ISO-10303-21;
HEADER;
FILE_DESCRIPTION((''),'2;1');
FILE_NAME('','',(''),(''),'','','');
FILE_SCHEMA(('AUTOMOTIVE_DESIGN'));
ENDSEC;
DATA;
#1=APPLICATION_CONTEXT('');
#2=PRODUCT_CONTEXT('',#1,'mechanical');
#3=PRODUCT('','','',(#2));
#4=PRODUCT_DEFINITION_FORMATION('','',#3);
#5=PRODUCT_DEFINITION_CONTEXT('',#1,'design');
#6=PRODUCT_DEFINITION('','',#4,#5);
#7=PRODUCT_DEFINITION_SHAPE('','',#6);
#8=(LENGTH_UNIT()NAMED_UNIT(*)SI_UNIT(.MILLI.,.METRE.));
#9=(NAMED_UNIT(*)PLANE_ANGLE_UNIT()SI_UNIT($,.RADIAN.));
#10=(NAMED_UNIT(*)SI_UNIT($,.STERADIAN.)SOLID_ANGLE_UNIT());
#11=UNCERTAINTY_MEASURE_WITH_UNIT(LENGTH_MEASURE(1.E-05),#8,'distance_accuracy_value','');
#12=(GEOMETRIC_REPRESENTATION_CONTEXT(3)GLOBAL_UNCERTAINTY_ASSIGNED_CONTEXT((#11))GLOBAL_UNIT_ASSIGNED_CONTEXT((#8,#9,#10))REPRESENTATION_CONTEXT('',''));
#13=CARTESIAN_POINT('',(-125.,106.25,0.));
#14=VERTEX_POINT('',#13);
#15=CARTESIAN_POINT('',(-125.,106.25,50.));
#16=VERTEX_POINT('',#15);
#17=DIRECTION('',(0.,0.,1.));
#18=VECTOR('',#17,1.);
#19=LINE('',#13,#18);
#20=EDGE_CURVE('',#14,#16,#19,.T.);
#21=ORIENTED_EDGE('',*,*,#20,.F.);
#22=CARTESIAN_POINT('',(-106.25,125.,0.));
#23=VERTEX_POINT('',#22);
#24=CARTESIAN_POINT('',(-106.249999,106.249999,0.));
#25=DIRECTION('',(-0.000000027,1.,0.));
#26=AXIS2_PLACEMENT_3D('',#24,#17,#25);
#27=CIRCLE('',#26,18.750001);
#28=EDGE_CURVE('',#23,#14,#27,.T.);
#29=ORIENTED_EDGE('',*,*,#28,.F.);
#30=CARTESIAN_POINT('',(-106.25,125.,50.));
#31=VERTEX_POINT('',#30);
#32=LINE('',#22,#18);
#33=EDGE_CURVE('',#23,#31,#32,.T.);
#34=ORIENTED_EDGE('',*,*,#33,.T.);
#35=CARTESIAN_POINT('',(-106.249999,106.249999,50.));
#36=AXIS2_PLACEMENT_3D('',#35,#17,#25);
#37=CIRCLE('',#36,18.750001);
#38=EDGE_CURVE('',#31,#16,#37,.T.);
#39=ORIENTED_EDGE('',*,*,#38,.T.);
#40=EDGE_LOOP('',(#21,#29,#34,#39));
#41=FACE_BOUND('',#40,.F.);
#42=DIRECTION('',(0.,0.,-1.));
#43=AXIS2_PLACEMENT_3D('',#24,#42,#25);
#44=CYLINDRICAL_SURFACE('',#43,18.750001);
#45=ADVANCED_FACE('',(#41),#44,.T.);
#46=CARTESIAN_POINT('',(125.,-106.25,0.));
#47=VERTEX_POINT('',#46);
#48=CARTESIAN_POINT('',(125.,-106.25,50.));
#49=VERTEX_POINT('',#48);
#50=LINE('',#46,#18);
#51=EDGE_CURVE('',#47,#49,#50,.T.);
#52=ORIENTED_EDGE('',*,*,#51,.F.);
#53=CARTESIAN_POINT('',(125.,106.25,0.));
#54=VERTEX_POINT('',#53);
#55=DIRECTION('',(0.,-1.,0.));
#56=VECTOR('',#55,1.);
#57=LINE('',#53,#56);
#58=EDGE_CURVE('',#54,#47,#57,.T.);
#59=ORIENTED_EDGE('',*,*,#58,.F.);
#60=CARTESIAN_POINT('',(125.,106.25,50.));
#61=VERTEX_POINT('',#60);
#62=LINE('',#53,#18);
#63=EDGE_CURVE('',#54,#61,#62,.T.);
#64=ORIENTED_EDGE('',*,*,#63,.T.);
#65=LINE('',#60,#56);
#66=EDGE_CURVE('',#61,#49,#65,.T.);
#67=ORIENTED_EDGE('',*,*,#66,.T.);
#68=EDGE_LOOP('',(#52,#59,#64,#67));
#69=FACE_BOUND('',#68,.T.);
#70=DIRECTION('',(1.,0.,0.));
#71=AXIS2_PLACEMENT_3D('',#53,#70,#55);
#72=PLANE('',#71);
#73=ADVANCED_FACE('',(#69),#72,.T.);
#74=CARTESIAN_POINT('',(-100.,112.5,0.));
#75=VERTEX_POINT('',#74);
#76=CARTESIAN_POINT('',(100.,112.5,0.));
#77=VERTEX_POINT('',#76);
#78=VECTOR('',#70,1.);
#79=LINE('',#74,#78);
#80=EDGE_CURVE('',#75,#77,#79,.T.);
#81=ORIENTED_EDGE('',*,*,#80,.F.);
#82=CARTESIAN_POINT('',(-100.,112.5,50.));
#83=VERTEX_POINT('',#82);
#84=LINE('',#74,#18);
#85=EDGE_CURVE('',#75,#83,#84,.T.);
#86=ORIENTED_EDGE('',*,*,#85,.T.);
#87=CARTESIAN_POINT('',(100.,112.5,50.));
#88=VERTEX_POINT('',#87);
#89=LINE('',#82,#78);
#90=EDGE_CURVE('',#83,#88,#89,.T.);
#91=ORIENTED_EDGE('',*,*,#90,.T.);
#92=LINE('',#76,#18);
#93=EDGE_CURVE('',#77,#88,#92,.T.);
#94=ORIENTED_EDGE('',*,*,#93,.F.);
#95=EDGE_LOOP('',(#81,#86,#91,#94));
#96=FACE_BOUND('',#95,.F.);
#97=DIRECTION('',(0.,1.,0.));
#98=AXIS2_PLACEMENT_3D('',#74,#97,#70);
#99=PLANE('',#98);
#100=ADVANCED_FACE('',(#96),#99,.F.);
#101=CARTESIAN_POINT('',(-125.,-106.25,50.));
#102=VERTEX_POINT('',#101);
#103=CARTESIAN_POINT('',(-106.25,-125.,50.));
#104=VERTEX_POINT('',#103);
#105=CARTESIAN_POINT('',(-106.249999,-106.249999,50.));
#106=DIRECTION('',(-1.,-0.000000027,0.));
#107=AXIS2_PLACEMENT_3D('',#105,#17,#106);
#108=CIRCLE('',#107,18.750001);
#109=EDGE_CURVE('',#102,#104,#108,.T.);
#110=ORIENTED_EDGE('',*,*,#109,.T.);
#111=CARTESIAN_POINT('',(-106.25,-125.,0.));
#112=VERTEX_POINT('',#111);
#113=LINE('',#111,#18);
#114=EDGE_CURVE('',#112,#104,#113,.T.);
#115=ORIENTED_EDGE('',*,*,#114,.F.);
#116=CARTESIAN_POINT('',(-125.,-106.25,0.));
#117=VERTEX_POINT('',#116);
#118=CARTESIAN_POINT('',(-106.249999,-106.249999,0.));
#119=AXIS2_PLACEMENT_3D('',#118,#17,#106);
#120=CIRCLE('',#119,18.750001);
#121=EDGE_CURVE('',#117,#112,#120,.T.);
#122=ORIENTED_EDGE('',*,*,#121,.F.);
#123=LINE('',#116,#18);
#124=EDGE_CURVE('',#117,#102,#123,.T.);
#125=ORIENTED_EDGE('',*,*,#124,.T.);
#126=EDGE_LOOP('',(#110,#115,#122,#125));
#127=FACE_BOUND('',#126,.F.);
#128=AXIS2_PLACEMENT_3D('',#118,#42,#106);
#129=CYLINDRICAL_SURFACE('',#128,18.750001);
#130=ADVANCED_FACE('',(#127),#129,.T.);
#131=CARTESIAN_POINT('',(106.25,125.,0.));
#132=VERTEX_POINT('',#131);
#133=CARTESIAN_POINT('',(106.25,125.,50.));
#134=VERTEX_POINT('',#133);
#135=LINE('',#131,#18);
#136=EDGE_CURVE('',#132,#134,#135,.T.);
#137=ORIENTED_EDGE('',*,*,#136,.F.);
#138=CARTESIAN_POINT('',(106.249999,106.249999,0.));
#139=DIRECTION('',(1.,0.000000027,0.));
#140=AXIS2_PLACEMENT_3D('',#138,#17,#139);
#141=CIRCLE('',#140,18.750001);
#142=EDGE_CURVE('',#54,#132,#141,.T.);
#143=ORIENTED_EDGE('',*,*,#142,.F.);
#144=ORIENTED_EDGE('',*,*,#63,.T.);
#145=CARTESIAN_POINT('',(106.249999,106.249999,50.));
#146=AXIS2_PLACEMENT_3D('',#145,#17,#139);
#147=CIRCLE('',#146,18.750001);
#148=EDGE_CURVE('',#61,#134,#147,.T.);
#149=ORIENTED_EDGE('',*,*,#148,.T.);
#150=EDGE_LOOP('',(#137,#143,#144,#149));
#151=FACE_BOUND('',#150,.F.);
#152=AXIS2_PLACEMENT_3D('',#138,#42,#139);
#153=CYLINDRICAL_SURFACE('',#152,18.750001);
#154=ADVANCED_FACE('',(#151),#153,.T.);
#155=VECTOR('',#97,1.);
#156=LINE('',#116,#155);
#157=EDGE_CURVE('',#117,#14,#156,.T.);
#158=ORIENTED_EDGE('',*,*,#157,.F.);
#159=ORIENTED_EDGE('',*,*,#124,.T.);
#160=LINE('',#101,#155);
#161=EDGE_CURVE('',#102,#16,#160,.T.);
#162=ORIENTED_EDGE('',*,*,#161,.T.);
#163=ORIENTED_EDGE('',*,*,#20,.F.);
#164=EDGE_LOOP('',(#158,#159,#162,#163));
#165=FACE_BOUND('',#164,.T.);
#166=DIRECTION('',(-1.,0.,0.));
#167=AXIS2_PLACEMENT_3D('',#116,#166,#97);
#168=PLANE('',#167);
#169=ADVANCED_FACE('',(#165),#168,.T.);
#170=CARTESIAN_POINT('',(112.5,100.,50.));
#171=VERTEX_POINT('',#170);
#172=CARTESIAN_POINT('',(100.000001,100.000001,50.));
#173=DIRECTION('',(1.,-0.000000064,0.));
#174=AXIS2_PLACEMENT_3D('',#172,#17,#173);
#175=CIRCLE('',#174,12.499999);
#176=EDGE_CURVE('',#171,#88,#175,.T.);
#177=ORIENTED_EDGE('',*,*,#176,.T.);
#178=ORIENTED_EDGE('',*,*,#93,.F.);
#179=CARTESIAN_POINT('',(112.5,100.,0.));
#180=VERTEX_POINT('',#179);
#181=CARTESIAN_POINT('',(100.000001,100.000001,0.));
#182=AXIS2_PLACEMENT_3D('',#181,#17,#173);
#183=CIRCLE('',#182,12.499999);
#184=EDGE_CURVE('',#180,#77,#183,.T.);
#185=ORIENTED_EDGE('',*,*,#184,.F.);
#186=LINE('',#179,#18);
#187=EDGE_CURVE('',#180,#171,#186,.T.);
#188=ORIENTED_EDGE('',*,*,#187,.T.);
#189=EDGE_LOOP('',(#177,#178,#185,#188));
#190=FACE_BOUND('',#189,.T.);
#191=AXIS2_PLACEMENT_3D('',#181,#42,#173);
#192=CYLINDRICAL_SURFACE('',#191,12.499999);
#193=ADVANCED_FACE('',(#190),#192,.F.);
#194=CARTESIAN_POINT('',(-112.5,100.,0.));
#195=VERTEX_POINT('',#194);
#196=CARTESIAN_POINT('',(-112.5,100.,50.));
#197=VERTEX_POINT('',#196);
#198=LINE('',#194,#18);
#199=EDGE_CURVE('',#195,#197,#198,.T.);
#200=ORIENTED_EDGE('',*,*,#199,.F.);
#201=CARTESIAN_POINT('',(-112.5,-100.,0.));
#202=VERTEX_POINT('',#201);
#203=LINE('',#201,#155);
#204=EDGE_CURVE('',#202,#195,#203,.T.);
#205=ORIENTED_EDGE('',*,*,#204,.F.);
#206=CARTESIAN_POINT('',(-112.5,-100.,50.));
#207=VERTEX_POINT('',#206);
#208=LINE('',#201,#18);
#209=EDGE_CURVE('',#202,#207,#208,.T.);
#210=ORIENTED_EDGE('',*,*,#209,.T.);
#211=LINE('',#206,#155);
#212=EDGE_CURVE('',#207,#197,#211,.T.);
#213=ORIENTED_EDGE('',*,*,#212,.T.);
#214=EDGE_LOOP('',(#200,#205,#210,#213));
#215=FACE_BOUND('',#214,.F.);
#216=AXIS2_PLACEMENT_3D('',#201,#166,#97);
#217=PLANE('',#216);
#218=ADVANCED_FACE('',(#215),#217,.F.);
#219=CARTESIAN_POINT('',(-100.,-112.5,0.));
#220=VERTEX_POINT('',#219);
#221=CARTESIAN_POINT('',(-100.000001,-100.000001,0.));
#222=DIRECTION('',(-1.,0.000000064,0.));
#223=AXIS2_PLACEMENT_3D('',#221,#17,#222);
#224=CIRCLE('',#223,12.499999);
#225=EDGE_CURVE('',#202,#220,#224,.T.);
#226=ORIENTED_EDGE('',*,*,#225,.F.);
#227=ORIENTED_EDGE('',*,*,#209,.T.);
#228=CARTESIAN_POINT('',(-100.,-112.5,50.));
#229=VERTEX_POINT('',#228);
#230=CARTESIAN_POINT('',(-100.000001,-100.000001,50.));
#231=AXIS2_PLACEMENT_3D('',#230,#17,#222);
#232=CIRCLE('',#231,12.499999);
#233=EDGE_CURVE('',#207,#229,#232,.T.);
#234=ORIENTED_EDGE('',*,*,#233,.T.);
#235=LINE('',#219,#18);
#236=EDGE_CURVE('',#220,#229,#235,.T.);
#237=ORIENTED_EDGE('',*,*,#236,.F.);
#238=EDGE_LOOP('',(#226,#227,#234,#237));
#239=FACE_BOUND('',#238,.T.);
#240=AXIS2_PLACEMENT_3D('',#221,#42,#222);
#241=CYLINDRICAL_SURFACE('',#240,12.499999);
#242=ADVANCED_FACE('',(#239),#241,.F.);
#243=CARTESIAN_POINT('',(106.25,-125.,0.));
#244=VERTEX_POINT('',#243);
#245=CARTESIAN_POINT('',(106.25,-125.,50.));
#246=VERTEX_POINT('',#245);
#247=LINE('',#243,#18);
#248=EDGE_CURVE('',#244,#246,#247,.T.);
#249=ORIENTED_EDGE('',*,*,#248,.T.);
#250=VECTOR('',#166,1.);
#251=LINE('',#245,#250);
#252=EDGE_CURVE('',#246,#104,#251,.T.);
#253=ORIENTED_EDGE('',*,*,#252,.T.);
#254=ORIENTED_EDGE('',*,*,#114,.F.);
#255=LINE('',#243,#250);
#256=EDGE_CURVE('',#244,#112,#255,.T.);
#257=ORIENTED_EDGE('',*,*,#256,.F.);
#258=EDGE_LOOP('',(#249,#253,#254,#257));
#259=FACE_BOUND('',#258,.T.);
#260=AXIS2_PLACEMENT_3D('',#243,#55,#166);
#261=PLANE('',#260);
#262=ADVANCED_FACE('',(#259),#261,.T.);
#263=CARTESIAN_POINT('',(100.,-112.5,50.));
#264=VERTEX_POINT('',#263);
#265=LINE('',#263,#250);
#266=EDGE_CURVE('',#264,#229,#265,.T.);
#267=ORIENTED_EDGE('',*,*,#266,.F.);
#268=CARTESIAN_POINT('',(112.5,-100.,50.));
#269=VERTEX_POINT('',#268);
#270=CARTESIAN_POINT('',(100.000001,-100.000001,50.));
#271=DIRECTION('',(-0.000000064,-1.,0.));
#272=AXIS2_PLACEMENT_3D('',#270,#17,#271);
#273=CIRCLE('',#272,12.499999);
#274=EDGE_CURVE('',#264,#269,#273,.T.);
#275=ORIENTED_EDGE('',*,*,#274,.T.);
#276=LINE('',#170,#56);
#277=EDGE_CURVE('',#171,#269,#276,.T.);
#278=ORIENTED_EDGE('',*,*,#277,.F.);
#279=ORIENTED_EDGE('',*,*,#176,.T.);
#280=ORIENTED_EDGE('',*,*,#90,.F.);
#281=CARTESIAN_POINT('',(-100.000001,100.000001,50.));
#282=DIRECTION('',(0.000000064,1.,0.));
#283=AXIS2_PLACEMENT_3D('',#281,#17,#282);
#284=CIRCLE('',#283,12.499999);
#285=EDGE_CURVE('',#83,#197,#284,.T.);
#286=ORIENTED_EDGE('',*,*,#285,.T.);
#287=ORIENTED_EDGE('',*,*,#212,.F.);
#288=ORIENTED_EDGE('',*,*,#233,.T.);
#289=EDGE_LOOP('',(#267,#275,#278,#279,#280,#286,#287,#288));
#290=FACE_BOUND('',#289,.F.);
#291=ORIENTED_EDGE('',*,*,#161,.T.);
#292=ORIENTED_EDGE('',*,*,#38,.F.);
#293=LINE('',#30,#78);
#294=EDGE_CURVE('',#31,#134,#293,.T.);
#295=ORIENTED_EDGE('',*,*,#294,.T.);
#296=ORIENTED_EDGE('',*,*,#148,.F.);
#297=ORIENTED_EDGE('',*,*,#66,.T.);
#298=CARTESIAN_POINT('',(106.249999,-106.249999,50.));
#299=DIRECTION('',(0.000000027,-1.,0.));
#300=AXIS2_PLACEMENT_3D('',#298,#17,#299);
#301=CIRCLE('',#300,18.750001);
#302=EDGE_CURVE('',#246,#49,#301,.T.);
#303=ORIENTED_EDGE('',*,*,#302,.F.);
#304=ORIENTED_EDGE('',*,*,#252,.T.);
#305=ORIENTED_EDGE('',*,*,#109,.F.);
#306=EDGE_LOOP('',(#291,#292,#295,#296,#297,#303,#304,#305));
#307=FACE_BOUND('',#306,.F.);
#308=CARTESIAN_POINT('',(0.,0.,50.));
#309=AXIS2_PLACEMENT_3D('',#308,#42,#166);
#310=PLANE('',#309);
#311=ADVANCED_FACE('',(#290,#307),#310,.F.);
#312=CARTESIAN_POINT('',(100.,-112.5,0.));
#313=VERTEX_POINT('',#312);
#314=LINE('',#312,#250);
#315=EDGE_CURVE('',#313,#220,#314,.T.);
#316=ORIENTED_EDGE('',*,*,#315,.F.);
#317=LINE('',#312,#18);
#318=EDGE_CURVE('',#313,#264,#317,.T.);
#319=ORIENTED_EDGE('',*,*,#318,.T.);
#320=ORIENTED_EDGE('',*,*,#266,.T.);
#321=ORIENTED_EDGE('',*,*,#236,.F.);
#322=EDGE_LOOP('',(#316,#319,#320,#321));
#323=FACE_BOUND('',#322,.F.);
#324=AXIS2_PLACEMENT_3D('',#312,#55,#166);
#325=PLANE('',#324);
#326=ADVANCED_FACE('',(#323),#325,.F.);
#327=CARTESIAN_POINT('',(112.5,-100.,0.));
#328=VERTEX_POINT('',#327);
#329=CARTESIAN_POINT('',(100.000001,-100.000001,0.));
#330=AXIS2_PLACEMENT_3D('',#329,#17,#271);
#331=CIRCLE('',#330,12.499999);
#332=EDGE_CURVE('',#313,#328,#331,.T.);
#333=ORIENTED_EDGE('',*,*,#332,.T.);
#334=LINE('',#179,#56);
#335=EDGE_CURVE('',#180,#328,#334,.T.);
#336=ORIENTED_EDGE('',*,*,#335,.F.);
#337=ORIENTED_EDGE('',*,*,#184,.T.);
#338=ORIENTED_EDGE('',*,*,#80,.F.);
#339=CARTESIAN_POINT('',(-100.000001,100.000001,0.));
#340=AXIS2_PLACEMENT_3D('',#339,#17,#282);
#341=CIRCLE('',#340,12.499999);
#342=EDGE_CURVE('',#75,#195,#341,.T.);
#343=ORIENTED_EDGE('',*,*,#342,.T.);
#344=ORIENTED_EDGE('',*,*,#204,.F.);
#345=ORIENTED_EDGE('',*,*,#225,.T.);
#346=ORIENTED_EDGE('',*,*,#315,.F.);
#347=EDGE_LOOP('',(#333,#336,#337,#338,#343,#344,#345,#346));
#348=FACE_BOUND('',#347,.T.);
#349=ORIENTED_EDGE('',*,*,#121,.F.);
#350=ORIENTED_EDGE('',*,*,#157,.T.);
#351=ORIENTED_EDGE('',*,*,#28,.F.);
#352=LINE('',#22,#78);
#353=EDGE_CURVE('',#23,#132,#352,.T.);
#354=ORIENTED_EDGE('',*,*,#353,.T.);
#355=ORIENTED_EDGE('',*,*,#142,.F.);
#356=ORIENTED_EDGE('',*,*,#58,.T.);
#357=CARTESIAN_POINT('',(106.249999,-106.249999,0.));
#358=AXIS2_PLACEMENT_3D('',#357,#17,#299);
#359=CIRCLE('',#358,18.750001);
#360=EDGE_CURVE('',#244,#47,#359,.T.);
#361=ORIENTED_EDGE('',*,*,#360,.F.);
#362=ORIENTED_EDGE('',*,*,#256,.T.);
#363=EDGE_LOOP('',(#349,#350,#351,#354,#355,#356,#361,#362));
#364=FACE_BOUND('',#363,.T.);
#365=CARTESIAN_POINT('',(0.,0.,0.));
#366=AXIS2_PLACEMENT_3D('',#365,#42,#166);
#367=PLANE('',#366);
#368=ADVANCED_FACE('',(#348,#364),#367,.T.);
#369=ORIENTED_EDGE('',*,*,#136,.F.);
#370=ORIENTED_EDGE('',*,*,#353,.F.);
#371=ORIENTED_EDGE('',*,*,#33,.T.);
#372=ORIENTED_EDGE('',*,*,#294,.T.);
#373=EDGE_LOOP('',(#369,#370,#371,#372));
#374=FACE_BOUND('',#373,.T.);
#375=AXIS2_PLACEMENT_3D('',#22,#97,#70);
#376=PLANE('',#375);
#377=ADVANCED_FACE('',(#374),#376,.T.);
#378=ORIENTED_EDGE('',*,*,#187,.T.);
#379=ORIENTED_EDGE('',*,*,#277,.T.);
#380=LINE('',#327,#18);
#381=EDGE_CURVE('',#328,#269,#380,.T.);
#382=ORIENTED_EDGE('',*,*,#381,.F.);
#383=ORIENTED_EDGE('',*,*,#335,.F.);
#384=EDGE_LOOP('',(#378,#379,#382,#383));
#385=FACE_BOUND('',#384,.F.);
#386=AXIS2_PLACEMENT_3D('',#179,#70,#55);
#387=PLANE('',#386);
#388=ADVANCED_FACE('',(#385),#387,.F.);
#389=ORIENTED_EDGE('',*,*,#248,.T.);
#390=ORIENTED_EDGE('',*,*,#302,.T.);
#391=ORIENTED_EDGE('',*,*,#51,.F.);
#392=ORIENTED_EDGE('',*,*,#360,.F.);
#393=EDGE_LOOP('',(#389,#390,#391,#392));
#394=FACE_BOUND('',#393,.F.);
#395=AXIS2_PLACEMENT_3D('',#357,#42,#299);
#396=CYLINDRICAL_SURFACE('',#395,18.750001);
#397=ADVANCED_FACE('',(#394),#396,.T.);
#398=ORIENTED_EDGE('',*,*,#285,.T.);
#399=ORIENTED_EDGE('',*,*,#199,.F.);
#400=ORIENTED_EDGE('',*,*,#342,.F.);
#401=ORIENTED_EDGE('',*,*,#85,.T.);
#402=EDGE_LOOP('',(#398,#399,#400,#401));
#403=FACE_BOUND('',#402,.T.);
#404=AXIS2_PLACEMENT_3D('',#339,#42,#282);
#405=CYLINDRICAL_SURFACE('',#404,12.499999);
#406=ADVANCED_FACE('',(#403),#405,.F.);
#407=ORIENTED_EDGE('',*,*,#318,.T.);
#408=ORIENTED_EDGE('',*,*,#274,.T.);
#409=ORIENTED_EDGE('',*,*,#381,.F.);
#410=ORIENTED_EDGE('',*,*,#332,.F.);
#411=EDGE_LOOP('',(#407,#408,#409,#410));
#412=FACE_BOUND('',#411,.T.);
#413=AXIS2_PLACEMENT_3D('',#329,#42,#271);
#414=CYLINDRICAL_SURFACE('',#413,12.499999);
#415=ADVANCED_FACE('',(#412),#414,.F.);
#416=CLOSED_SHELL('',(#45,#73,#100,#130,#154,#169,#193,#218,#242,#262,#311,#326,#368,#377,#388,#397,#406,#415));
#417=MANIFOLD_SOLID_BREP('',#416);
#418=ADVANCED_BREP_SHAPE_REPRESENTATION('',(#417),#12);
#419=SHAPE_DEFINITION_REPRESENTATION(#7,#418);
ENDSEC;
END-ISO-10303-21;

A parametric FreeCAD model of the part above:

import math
import FreeCAD as App
import Part
import Sketcher

V = App.Vector
Q = App.Units.Quantity

doc = App.newDocument("Part")
params = doc.addObject("Spreadsheet::Sheet", "Params")
for row, (alias, value) in enumerate([
    ("sketch1_radius", "12.499999 mm"),
    ("sketch1_width", "200 mm"),
    ("sketch1_radius2", "18.750001 mm"),
    ("sketch1_width2", "212.5 mm"),
    ("pad1_length", "50 mm"),
], start=1):
    params.set(f"A{row}", alias)
    params.set(f"B{row}", "=" + value)
    params.setAlias(f"B{row}", alias)

body = doc.addObject("PartDesign::Body", "Body")

# Sketch on XY plane
sketch1 = body.newObject("Sketcher::SketchObject", "Sketch")
sketch1.AttachmentSupport = (doc.getObject("XY_Plane"), [""])
sketch1.MapMode = "FlatFace"
sketch1.addGeometry([
    Part.LineSegment(V(106.25, 125, 0), V(-106.25, 125, 0)),  # 0
    Part.ArcOfCircle(Part.Circle(V(-106.249999, 106.249999, 0), V(0, 0, 1), 18.750001), math.radians(90.000002), math.radians(179.999998)),  # 1
    Part.LineSegment(V(-125, 106.25, 0), V(-125, -106.25, 0)),  # 2
    Part.ArcOfCircle(Part.Circle(V(-106.249999, -106.249999, 0), V(0, 0, 1), 18.750001), math.radians(-179.999998), math.radians(-90.000002)),  # 3
    Part.LineSegment(V(-106.25, -125, 0), V(106.25, -125, 0)),  # 4
    Part.ArcOfCircle(Part.Circle(V(106.249999, -106.249999, 0), V(0, 0, 1), 18.750001), math.radians(-89.999998), math.radians(-0.000002)),  # 5
    Part.LineSegment(V(125, -106.25, 0), V(125, 106.25, 0)),  # 6
    Part.ArcOfCircle(Part.Circle(V(106.249999, 106.249999, 0), V(0, 0, 1), 18.750001), math.radians(0.000002), math.radians(89.999998)),  # 7
    Part.LineSegment(V(-100, 112.5, 0), V(100, 112.5, 0)),  # 8
    Part.ArcOfCircle(Part.Circle(V(100.000001, 100.000001, 0), V(0, 0, 1), 12.499999), math.radians(-0.000004), math.radians(90.000004)),  # 9
    Part.LineSegment(V(112.5, 100, 0), V(112.5, -100, 0)),  # 10
    Part.ArcOfCircle(Part.Circle(V(100.000001, -100.000001, 0), V(0, 0, 1), 12.499999), math.radians(-90.000004), math.radians(0.000004)),  # 11
    Part.LineSegment(V(100, -112.5, 0), V(-100, -112.5, 0)),  # 12
    Part.ArcOfCircle(Part.Circle(V(-100.000001, -100.000001, 0), V(0, 0, 1), 12.499999), math.radians(179.999996), math.radians(270.000004)),  # 13
    Part.LineSegment(V(-112.5, -100, 0), V(-112.5, 100, 0)),  # 14
    Part.ArcOfCircle(Part.Circle(V(-100.000001, 100.000001, 0), V(0, 0, 1), 12.499999), math.radians(89.999996), math.radians(180.000004)),  # 15
], False)
sketch1.addConstraint([
    Sketcher.Constraint("Tangent", 0, 2, 1, 1),
    Sketcher.Constraint("Tangent", 1, 2, 2, 1),
    Sketcher.Constraint("Tangent", 2, 2, 3, 1),
    Sketcher.Constraint("Tangent", 3, 2, 4, 1),
    Sketcher.Constraint("Tangent", 4, 2, 5, 1),
    Sketcher.Constraint("Tangent", 5, 2, 6, 1),
    Sketcher.Constraint("Tangent", 6, 2, 7, 1),
    Sketcher.Constraint("Tangent", 7, 2, 0, 1),
    Sketcher.Constraint("Tangent", 8, 2, 9, 2),
    Sketcher.Constraint("Tangent", 9, 1, 10, 1),
    Sketcher.Constraint("Tangent", 10, 2, 11, 2),
    Sketcher.Constraint("Tangent", 11, 1, 12, 1),
    Sketcher.Constraint("Tangent", 12, 2, 13, 2),
    Sketcher.Constraint("Tangent", 13, 1, 14, 1),
    Sketcher.Constraint("Tangent", 14, 2, 15, 2),
    Sketcher.Constraint("Tangent", 15, 1, 8, 1),
    Sketcher.Constraint("Horizontal", 0),
    Sketcher.Constraint("Vertical", 2),
    Sketcher.Constraint("Horizontal", 4),
    Sketcher.Constraint("Vertical", 6),
    Sketcher.Constraint("Horizontal", 8),
    Sketcher.Constraint("Vertical", 10),
    Sketcher.Constraint("Horizontal", 12),
    Sketcher.Constraint("Vertical", 14),
    Sketcher.Constraint("Equal", 1, 3),
    Sketcher.Constraint("Equal", 3, 5),
    Sketcher.Constraint("Equal", 5, 7),
    Sketcher.Constraint("Equal", 9, 11),
    Sketcher.Constraint("Equal", 11, 13),
    Sketcher.Constraint("Equal", 13, 15),
    Sketcher.Constraint("Symmetric", 1, 3, 5, 3, -1, 1),
    Sketcher.Constraint("Symmetric", 9, 3, 13, 3, -1, 1),
    Sketcher.Constraint("Equal", 4, 2),
    Sketcher.Constraint("Equal", 12, 10),
    Sketcher.Constraint("Radius", 9, Q("12.499999 mm")),
    Sketcher.Constraint("DistanceX", 8, 1, 8, 2, Q("200 mm")),
    Sketcher.Constraint("Radius", 1, Q("18.750001 mm")),
    Sketcher.Constraint("DistanceX", 0, 2, 0, 1, Q("212.5 mm")),
])
sketch1.setExpression("Constraints[34]", "Params.sketch1_radius")
sketch1.setExpression("Constraints[35]", "Params.sketch1_width")
sketch1.setExpression("Constraints[36]", "Params.sketch1_radius2")
sketch1.setExpression("Constraints[37]", "Params.sketch1_width2")
pad1 = body.newObject("PartDesign::Pad", "Pad")
pad1.Profile = sketch1
pad1.setExpression("Length", "Params.pad1_length")

doc.recompute()
